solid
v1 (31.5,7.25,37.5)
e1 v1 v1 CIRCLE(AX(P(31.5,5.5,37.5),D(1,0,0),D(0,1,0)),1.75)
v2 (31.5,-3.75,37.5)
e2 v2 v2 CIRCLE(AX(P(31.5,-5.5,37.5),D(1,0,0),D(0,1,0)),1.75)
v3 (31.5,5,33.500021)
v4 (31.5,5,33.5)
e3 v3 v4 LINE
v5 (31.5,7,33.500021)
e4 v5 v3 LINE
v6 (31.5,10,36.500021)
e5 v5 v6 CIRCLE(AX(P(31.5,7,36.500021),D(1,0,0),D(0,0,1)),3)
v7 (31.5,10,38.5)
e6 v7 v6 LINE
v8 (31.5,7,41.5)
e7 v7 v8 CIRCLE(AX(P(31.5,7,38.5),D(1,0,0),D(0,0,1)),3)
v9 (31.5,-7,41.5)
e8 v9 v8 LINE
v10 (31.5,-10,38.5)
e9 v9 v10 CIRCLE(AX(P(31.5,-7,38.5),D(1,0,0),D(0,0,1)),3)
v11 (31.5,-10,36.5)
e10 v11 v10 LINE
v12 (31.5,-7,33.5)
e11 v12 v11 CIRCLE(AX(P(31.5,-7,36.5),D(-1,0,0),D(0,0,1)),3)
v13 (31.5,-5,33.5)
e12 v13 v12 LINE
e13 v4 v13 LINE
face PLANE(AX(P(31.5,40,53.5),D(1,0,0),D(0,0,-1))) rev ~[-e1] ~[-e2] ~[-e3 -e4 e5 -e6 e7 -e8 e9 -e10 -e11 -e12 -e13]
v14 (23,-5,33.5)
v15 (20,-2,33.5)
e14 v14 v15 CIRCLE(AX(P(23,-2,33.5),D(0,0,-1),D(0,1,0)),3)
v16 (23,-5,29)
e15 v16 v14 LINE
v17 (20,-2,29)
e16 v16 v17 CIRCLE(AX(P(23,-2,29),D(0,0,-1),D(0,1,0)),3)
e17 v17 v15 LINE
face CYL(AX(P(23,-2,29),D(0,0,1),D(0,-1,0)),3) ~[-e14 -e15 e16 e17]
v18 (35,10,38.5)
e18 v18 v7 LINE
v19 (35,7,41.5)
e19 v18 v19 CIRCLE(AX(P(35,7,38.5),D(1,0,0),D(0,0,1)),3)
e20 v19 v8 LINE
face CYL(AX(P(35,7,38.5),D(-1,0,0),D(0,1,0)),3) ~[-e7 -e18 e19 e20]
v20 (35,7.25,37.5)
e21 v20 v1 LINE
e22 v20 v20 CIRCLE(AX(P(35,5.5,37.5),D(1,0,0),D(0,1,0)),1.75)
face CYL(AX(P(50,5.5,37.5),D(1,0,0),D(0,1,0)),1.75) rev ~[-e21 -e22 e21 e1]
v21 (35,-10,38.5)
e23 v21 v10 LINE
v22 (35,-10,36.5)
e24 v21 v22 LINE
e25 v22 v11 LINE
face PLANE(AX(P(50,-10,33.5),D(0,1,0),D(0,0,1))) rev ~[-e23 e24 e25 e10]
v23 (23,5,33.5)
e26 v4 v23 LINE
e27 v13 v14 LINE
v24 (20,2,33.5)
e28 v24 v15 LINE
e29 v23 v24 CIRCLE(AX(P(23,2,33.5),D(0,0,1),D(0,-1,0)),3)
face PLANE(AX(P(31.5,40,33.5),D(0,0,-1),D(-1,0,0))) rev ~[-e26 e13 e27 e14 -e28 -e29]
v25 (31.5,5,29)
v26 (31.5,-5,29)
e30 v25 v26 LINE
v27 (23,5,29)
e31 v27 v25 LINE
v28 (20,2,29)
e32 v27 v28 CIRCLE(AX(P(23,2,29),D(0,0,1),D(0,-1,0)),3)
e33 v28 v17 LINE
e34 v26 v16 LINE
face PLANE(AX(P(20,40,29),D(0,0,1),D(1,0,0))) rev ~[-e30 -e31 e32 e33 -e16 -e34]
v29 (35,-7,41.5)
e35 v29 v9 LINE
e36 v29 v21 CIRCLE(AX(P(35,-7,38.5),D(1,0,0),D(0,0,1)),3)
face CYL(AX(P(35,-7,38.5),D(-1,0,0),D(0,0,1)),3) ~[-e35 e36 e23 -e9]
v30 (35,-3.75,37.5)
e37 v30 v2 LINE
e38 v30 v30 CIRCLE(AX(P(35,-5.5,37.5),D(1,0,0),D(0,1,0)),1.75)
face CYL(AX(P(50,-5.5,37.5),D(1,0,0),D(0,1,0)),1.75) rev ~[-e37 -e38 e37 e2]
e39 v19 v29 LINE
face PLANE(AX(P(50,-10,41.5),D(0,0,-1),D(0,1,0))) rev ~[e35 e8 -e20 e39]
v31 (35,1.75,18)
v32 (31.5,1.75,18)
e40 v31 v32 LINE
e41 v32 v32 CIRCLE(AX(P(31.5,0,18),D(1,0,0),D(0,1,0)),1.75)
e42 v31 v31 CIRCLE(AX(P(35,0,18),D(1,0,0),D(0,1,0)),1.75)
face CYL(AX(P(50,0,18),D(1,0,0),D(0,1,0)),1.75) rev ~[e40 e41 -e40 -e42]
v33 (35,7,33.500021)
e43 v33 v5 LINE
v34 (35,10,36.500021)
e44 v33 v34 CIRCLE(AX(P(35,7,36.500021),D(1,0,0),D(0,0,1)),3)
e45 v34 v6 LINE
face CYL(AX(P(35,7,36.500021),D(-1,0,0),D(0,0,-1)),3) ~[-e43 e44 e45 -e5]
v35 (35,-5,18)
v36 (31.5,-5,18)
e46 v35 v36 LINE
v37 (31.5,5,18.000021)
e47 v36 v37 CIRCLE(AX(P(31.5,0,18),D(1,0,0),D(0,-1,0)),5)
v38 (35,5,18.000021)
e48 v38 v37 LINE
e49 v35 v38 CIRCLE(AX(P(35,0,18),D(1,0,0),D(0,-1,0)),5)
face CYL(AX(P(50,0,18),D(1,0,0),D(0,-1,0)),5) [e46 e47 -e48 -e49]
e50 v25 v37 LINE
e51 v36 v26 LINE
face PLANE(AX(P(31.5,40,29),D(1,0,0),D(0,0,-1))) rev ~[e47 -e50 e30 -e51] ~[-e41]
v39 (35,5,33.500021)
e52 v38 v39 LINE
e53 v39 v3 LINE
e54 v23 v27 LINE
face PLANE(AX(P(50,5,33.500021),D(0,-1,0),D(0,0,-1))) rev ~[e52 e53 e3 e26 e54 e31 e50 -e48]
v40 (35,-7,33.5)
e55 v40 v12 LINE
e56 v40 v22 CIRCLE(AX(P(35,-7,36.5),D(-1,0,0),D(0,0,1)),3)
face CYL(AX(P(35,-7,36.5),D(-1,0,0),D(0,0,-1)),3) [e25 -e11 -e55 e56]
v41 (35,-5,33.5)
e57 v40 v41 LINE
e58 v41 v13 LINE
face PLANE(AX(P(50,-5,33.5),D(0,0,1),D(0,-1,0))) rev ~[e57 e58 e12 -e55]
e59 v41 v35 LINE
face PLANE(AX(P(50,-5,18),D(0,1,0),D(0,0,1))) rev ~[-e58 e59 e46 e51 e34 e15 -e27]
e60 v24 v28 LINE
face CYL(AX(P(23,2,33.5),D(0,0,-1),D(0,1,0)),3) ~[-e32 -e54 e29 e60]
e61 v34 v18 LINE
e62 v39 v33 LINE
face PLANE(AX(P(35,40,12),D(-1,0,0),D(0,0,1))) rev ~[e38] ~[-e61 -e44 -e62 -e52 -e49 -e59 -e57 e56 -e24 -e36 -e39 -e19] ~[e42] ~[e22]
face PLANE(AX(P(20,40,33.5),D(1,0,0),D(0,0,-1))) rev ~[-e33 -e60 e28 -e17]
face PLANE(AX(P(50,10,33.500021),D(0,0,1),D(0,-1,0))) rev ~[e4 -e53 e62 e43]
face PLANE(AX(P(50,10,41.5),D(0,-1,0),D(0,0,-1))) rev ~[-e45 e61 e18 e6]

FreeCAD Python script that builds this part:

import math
import FreeCAD as App
import Part
import Sketcher
Q = App.Units.Quantity


def edges_at(feature, points):
    """Names of the edges that pass closest to the given points."""
    edges = feature.Shape.Edges
    near = lambda p: min(range(len(edges)), key=lambda i: edges[i].distToShape(Part.Vertex(*p))[0])
    return sorted({f"Edge{near(p) + 1}" for p in points})

doc = App.newDocument("Part")
body = doc.addObject("PartDesign::Body", "Body")

sketch1 = body.newObject("Sketcher::SketchObject", "Sketch")
sketch1.AttachmentSupport = (doc.getObject("YZ_Plane"), [""])
sketch1.MapMode = "FlatFace"
sketch1.AttachmentOffset = App.Placement(App.Vector(0, 0, -50), App.Rotation())
sketch1.addGeometry([
    Part.ArcOfCircle(Part.Circle(App.Vector(0, 18, 0), App.Vector(0, 0, 1), 5), math.radians(179.999759), math.radians(360)),
    Part.LineSegment(App.Vector(-5, 18.000021, 0), App.Vector(-5, 33.500021, 0)),
    Part.LineSegment(App.Vector(-5, 33.500021, 0), App.Vector(-10, 33.500021, 0)),
    Part.LineSegment(App.Vector(-10, 33.500021, 0), App.Vector(-10, 41.5, 0)),
    Part.LineSegment(App.Vector(-10, 41.5, 0), App.Vector(10, 41.5, 0)),
    Part.LineSegment(App.Vector(10, 41.5, 0), App.Vector(10, 33.5, 0)),
    Part.LineSegment(App.Vector(10, 33.5, 0), App.Vector(5, 33.5, 0)),
    Part.LineSegment(App.Vector(5, 33.5, 0), App.Vector(5, 18, 0)),
    Part.Circle(App.Vector(0, 18, 0), App.Vector(0, 0, 1), 1.75),
    Part.Circle(App.Vector(5.5, 37.5, 0), App.Vector(0, 0, 1), 1.75),
    Part.Circle(App.Vector(-5.5, 37.5, 0), App.Vector(0, 0, 1), 1.75),
], False)
sketch1.addConstraint([
    Sketcher.Constraint("Coincident", 0, 1, 1, 1),
    Sketcher.Constraint("Coincident", 1, 2, 2, 1),
    Sketcher.Constraint("Coincident", 2, 2, 3, 1),
    Sketcher.Constraint("Coincident", 3, 2, 4, 1),
    Sketcher.Constraint("Coincident", 4, 2, 5, 1),
    Sketcher.Constraint("Coincident", 5, 2, 6, 1),
    Sketcher.Constraint("Coincident", 6, 2, 7, 1),
    Sketcher.Constraint("Tangent", 7, 2, 0, 2),
    Sketcher.Constraint("Vertical", 1),
    Sketcher.Constraint("Horizontal", 2),
    Sketcher.Constraint("Vertical", 3),
    Sketcher.Constraint("Horizontal", 4),
    Sketcher.Constraint("Vertical", 5),
    Sketcher.Constraint("Horizontal", 6),
    Sketcher.Constraint("Vertical", 7),
    Sketcher.Constraint("Coincident", 8, 3, 0, 3),
    Sketcher.Constraint("Equal", 8, 9),
    Sketcher.Constraint("Equal", 9, 10),
    Sketcher.Constraint("Symmetric", 9, 3, 10, 3, -2),
    Sketcher.Constraint("PointOnObject", 0, 3, -2),
    Sketcher.Constraint("Equal", 2, 6),
    Sketcher.Constraint("Equal", 1, 7),
    Sketcher.Constraint("Radius", 0, Q("5 mm")),
    Sketcher.Constraint("Diameter", 8, Q("3.5 mm")),
    Sketcher.Constraint("DistanceX", 2, 2, 2, 1, Q("5 mm")),
    Sketcher.Constraint("DistanceY", 5, 2, 5, 1, Q("8 mm")),
    Sketcher.Constraint("DistanceY", 1, 1, 1, 2, Q("15.5 mm")),
    Sketcher.Constraint("DistanceY", -1, 1, 0, 3, Q("18 mm")),
    Sketcher.Constraint("DistanceX", 10, 3, 9, 3, Q("11 mm")),
    Sketcher.Constraint("DistanceY", 10, 3, 3, 2, Q("4 mm")),
    Sketcher.Constraint("DistanceY", 3, 1, 3, 2, Q("7.999979 mm")),
])
pad1 = body.newObject("PartDesign::Pad", "Pad")
pad1.Profile = sketch1
pad1.Length = 40
body2 = doc.addObject("PartDesign::Body", "Body001")

sketch2 = body2.newObject("Sketcher::SketchObject", "Sketch001")
sketch2.AttachmentSupport = (doc.getObject("XZ_Plane001"), [""])
sketch2.MapMode = "FlatFace"
sketch2.AttachmentOffset = App.Placement(App.Vector(0, 0, 40), App.Rotation())
sketch2.addGeometry([
    Part.LineSegment(App.Vector(-35, 12, 0), App.Vector(-31.5, 12, 0)),
    Part.LineSegment(App.Vector(-31.5, 12, 0), App.Vector(-31.5, 29, 0)),
    Part.LineSegment(App.Vector(-31.5, 29, 0), App.Vector(-20, 29, 0)),
    Part.LineSegment(App.Vector(-20, 29, 0), App.Vector(-20, 33.5, 0)),
    Part.LineSegment(App.Vector(-20, 33.5, 0), App.Vector(-31.5, 33.5, 0)),
    Part.LineSegment(App.Vector(-31.5, 33.5, 0), App.Vector(-31.5, 53.5, 0)),
    Part.LineSegment(App.Vector(-31.5, 53.5, 0), App.Vector(-35, 53.5, 0)),
    Part.LineSegment(App.Vector(-35, 53.5, 0), App.Vector(-35, 12, 0)),
], False)
sketch2.addConstraint([
    Sketcher.Constraint("Coincident", 0, 2, 1, 1),
    Sketcher.Constraint("Coincident", 1, 2, 2, 1),
    Sketcher.Constraint("Coincident", 2, 2, 3, 1),
    Sketcher.Constraint("Coincident", 3, 2, 4, 1),
    Sketcher.Constraint("Coincident", 4, 2, 5, 1),
    Sketcher.Constraint("Coincident", 5, 2, 6, 1),
    Sketcher.Constraint("Coincident", 6, 2, 7, 1),
    Sketcher.Constraint("Coincident", 7, 2, 0, 1),
    Sketcher.Constraint("Horizontal", 0),
    Sketcher.Constraint("Vertical", 1),
    Sketcher.Constraint("Horizontal", 2),
    Sketcher.Constraint("Vertical", 3),
    Sketcher.Constraint("Horizontal", 4),
    Sketcher.Constraint("Vertical", 5),
    Sketcher.Constraint("Horizontal", 6),
    Sketcher.Constraint("Vertical", 7),
    Sketcher.Constraint("Vertical", 1, 2, 4, 2),
    Sketcher.Constraint("DistanceY", 1, 1, 1, 2, Q("17 mm")),
    Sketcher.Constraint("DistanceY", 5, 1, 5, 2, Q("20 mm")),
    Sketcher.Constraint("DistanceX", 0, 1, 0, 2, Q("3.5 mm")),
    Sketcher.Constraint("DistanceX", 2, 1, 2, 2, Q("11.5 mm")),
    Sketcher.Constraint("DistanceY", 3, 1, 3, 2, Q("4.5 mm")),
    Sketcher.Constraint("DistanceY", -1, 1, 0, 2, Q("12 mm")),
    Sketcher.Constraint("DistanceX", 2, 2, -1, 1, Q("20 mm")),
])
pad2 = body2.newObject("PartDesign::Pad", "Pad001")
pad2.Profile = sketch2
pad2.Length = 70
pad2.Reversed = True
doc.recompute()

boolean = body2.newObject("PartDesign::Boolean", "Boolean")
boolean.Type = "Common"
boolean.addObjects([body])
doc.recompute()

fillet = body2.newObject("PartDesign::Fillet", "Fillet")
fillet.Base = (boolean, edges_at(boolean, [
    (-20, -5, 31.25),
    (-20, 5, 31.25),
    (-33.25, -10, 33.5),
    (-33.25, 10, 33.5),
    (-33.25, -10, 41.5),
    (-33.25, 10, 41.5),
]))
fillet.Radius = 3
body3 = doc.addObject("PartDesign::Body", "Body002")
doc.recompute()

body2.Placement = App.Placement(App.Vector(0, 0, 0), App.Rotation(App.Vector(0, 0, 1), 180))
boolean2 = body3.newObject("PartDesign::Boolean", "Boolean001")
boolean2.Type = "Fuse"
boolean2.addObjects([body2])

doc.recompute()
